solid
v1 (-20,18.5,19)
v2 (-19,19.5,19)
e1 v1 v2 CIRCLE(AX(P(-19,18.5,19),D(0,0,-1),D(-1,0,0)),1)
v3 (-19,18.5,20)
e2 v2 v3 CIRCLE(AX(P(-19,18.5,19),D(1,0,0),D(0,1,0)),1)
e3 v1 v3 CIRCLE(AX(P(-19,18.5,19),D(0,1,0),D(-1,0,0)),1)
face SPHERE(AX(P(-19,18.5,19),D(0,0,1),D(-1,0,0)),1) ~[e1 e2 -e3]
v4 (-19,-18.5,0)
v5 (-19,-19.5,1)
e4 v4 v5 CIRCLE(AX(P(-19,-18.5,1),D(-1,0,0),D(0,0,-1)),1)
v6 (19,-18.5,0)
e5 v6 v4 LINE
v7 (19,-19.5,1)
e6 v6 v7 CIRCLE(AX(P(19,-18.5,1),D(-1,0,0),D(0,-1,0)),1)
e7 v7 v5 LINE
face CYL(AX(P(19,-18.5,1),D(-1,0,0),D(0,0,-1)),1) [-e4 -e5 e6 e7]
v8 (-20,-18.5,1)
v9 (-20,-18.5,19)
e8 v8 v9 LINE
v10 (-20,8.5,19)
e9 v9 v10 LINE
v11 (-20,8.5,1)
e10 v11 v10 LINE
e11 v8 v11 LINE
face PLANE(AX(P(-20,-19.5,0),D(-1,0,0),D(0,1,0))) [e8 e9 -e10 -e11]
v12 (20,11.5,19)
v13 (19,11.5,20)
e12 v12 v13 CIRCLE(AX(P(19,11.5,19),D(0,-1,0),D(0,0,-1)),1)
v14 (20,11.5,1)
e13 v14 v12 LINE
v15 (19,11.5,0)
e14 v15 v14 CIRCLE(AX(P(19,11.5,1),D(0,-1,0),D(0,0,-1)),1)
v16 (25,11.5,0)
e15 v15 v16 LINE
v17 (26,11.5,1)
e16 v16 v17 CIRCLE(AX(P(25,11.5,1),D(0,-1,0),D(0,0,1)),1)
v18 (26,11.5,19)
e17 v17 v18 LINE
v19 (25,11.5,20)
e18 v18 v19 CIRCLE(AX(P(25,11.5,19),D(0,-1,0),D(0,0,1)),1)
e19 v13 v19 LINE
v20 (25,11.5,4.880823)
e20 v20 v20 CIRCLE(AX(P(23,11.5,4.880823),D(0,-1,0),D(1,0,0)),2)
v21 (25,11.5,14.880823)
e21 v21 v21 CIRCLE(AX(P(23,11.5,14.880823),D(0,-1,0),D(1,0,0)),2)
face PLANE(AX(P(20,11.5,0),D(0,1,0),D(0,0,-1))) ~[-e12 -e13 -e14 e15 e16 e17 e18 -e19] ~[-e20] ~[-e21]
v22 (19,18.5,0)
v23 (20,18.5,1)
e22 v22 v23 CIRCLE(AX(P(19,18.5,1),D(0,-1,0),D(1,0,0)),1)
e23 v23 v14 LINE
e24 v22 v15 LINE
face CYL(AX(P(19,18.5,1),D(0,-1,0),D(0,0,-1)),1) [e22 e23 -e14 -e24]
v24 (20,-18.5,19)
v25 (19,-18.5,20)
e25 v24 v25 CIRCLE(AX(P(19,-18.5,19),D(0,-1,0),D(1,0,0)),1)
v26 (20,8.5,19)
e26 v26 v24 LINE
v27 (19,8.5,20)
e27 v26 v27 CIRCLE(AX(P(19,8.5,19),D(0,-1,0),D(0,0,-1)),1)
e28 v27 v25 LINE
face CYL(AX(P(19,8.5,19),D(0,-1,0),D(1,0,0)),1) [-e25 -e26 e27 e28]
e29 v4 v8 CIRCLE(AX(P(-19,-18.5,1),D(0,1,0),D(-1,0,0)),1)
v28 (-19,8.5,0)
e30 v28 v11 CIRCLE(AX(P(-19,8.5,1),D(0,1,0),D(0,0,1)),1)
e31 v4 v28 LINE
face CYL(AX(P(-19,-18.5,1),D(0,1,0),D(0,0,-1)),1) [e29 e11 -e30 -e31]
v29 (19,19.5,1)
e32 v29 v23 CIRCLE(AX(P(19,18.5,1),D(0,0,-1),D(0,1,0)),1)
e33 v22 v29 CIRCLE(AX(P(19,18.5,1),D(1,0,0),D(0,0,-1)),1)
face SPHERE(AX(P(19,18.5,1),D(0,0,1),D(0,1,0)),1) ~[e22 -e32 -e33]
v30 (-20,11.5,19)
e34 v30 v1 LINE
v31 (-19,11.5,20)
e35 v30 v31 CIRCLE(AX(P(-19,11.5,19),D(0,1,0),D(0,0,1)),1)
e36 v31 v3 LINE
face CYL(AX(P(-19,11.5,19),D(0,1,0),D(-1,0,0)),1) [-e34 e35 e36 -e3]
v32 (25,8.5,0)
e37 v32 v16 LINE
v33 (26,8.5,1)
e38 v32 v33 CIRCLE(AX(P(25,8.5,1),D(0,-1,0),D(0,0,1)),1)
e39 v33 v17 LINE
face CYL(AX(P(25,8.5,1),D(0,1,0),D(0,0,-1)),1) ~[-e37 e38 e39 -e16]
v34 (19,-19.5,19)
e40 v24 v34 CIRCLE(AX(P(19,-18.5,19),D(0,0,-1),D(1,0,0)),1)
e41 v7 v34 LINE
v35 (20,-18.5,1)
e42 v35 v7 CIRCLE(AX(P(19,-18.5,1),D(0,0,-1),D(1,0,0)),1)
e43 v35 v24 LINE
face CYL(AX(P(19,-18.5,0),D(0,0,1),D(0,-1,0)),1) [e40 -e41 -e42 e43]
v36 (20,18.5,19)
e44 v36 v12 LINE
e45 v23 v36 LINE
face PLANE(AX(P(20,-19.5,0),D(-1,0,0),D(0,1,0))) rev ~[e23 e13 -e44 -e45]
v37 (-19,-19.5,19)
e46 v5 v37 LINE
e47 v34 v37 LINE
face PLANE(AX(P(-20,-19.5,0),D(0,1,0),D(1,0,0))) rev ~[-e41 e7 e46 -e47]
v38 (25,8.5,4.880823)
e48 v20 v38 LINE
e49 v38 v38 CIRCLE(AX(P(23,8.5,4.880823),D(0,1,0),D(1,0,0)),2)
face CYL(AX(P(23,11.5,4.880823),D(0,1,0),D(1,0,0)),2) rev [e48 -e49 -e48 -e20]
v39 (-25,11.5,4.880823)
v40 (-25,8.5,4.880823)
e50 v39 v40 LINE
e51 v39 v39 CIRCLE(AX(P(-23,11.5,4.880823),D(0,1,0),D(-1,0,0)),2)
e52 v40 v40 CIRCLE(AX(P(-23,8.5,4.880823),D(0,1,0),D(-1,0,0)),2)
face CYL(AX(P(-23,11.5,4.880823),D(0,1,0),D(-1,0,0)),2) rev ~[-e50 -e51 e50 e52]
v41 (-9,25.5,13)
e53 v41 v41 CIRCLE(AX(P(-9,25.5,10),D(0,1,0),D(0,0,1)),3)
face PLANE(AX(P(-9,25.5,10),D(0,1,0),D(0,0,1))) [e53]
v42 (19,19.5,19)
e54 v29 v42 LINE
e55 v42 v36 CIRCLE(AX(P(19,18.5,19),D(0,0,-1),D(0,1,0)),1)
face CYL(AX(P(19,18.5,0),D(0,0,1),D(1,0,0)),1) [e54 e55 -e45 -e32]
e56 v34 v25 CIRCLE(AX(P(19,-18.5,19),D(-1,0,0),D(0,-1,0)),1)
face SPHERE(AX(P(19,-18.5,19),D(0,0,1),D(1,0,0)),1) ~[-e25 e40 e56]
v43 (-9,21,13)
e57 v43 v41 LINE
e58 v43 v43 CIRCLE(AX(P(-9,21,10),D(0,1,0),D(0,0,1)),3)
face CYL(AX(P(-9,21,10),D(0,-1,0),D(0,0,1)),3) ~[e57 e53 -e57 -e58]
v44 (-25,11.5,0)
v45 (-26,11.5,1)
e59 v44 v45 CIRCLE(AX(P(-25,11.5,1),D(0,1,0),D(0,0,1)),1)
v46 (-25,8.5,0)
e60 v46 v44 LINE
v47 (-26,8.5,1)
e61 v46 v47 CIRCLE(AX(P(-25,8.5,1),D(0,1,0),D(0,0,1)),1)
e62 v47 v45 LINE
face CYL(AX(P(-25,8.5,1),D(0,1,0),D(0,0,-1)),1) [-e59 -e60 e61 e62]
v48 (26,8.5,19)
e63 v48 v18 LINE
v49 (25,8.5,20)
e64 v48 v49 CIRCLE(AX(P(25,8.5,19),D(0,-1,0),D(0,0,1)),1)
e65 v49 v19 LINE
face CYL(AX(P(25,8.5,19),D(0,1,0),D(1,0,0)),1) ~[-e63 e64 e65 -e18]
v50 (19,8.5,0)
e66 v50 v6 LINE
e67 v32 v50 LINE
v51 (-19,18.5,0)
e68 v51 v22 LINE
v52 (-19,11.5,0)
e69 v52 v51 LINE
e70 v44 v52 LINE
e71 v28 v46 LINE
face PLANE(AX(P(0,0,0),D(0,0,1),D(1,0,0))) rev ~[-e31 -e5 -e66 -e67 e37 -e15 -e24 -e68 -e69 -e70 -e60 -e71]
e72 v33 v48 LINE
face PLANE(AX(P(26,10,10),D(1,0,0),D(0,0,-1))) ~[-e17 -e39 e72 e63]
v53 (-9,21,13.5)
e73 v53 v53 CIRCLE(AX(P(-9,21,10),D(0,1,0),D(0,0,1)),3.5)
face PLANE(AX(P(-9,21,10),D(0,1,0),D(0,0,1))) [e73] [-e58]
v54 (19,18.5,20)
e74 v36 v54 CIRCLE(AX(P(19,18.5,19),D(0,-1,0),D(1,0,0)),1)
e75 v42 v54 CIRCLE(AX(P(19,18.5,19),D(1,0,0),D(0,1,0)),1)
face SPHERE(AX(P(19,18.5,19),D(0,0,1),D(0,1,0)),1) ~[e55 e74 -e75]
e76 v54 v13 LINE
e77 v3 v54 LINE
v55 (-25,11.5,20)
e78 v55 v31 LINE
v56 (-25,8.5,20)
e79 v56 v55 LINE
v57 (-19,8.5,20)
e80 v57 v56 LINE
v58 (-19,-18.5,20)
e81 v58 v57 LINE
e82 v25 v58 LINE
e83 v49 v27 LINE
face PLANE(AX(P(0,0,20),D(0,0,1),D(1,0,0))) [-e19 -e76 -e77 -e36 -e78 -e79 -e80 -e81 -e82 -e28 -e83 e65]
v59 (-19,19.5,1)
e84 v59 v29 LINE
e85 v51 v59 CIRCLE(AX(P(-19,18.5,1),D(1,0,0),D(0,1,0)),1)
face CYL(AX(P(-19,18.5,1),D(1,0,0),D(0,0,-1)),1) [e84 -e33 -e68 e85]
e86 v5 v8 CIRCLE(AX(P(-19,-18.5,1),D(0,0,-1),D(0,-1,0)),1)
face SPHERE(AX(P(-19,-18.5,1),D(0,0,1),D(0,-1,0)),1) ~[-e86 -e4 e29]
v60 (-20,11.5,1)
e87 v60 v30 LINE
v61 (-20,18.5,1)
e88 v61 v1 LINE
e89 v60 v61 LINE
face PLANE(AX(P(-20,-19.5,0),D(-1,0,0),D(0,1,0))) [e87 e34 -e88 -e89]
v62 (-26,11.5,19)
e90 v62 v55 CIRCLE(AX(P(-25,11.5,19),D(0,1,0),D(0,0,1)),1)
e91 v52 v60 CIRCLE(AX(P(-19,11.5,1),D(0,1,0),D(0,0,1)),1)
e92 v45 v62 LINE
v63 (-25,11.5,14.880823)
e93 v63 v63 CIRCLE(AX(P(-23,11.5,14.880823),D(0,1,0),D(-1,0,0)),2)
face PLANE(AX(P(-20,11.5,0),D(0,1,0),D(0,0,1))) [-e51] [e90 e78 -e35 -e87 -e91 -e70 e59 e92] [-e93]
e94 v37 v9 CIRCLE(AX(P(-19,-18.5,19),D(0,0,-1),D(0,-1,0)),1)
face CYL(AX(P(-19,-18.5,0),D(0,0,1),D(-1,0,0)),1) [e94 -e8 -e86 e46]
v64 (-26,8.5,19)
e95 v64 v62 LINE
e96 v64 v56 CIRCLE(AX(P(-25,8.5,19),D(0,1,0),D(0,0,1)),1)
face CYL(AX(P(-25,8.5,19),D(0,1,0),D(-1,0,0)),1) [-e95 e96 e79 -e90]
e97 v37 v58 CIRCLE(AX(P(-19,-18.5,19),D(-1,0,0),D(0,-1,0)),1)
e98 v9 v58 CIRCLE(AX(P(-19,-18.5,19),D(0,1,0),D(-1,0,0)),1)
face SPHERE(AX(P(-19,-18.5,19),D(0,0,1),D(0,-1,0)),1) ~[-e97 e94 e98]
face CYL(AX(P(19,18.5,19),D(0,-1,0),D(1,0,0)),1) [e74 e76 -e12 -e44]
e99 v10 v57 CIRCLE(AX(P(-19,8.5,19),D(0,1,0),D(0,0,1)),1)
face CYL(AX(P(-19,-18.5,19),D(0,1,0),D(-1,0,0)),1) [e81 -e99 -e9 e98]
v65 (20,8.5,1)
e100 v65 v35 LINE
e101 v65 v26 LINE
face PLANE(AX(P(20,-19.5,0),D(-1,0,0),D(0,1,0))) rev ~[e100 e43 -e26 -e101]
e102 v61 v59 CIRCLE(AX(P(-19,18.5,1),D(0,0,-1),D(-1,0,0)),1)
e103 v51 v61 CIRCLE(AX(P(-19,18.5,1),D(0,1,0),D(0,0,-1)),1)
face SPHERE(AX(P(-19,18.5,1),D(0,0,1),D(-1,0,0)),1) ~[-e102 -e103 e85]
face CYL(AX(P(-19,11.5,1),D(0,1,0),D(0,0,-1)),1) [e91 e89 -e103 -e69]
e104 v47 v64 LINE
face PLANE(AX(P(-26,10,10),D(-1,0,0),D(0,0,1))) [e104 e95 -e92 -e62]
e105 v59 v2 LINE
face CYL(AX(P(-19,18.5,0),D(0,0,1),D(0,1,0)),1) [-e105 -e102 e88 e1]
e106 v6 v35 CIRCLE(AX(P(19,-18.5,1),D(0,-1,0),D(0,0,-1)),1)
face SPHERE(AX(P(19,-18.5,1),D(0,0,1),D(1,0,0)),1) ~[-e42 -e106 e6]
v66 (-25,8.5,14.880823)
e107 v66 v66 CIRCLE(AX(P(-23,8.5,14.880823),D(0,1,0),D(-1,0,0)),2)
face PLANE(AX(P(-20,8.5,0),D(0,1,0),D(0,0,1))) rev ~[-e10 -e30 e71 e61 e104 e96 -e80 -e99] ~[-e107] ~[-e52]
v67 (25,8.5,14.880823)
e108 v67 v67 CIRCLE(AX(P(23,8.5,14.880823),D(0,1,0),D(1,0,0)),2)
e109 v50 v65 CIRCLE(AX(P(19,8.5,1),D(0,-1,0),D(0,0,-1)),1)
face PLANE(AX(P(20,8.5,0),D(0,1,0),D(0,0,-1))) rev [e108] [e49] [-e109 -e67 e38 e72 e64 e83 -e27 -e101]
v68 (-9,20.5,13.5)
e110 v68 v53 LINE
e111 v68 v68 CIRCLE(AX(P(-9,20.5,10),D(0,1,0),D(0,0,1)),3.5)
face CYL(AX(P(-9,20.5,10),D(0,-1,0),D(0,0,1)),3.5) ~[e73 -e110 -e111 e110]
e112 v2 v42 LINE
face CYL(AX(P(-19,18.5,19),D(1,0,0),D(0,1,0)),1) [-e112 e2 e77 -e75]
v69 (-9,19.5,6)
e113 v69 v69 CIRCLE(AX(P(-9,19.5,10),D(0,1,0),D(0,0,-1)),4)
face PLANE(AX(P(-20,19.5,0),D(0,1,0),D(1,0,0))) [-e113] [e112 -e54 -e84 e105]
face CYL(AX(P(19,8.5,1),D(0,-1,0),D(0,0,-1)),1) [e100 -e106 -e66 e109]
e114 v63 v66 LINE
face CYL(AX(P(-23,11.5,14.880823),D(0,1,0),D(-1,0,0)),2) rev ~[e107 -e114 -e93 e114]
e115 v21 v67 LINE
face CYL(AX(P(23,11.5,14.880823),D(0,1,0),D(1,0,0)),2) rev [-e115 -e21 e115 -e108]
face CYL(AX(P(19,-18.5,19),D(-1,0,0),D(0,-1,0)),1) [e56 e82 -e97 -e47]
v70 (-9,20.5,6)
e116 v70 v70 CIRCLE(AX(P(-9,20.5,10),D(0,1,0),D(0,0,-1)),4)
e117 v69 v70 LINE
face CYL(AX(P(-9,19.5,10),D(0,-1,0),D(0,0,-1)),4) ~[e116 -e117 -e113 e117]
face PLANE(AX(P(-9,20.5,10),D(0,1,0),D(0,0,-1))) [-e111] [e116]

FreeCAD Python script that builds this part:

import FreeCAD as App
import Part
import Sketcher


def edges_at(feature, points):
    """Names of the edges that pass closest to the given points."""
    edges = feature.Shape.Edges
    near = lambda p: min(range(len(edges)), key=lambda i: edges[i].distToShape(Part.Vertex(*p))[0])
    return sorted({f"Edge{near(p) + 1}" for p in points})


def add_polygon(sketch, points):
    """Adds a closed chain of lines whose ends are joined by coincident constraints."""
    first, n = sketch.GeometryCount, len(points)
    for a, b in zip(points, points[1:] + points[:1]):
        sketch.addGeometry(Part.LineSegment(App.Vector(*a, 0), App.Vector(*b, 0)), False)
    for i in range(n):
        sketch.addConstraint(Sketcher.Constraint("Coincident", first + i, 2, first + (i + 1) % n, 1))

doc = App.newDocument("Part")
body = doc.addObject("PartDesign::Body", "Body")

# Sketch on XY plane
sketch1 = doc.addObject("Sketcher::SketchObject", "Sketch")
body.addObject(sketch1)
sketch1.AttachmentSupport = (doc.XY_Plane, [""])
sketch1.MapMode = "FlatFace"
add_polygon(sketch1, [(-20, 20), (-20, -20), (20, -20), (20, 20)])  # lines 0-3
sketch1.addConstraint(Sketcher.Constraint("Vertical", 0))
sketch1.addConstraint(Sketcher.Constraint("Horizontal", 1))
sketch1.addConstraint(Sketcher.Constraint("Vertical", 2))
sketch1.addConstraint(Sketcher.Constraint("Horizontal", 3))
sketch1.addConstraint(Sketcher.Constraint("Symmetric", 0, 2, 2, 2, -1, 1))
sketch1.addConstraint(Sketcher.Constraint("DistanceX", 1, 1, 1, 2, 40.0))
sketch1.addConstraint(Sketcher.Constraint("DistanceY", 0, 2, 0, 1, 39.0))
pad1 = doc.addObject("PartDesign::Pad", "Pad")
body.addObject(pad1)
pad1.Profile = sketch1
pad1.Length = 20

# Sketch on XZ plane
sketch2 = doc.addObject("Sketcher::SketchObject", "Sketch001")
body.addObject(sketch2)
sketch2.AttachmentSupport = (doc.XZ_Plane, [""])
sketch2.MapMode = "FlatFace"
sketch2.AttachmentOffset = App.Placement(App.Vector(0, 0, -19.5), App.Rotation())
sketch2.addGeometry(Part.Circle(App.Vector(-9, 10, 0), App.Vector(0, 0, 1), 4), False)
sketch2.addConstraint(Sketcher.Constraint("Diameter", 0, 8.0))
sketch2.addConstraint(Sketcher.Constraint("DistanceX", 0, 3, -1, 1, 9.0))
sketch2.addConstraint(Sketcher.Constraint("DistanceY", -1, 1, 0, 3, 10.0))
pad2 = doc.addObject("PartDesign::Pad", "Pad001")
body.addObject(pad2)
pad2.Profile = sketch2
pad2.Length = 1
pad2.Reversed = True

# Sketch on XZ plane
sketch3 = doc.addObject("Sketcher::SketchObject", "Sketch002")
body.addObject(sketch3)
sketch3.AttachmentSupport = (doc.XZ_Plane, [""])
sketch3.MapMode = "FlatFace"
sketch3.AttachmentOffset = App.Placement(App.Vector(0, 0, -20.5), App.Rotation())
sketch3.addGeometry(Part.Circle(App.Vector(-9, 10, 0), App.Vector(0, 0, 1), 3.5), False)
sketch3.addConstraint(Sketcher.Constraint("Diameter", 0, 7.0))
sketch3.addConstraint(Sketcher.Constraint("DistanceX", 0, 3, -1, 1, 9.0))
sketch3.addConstraint(Sketcher.Constraint("DistanceY", -1, 1, 0, 3, 10.0))
pad3 = doc.addObject("PartDesign::Pad", "Pad002")
body.addObject(pad3)
pad3.Profile = sketch3
pad3.Length = 0.5
pad3.Reversed = True

# Sketch on XZ plane
sketch4 = doc.addObject("Sketcher::SketchObject", "Sketch003")
body.addObject(sketch4)
sketch4.AttachmentSupport = (doc.XZ_Plane, [""])
sketch4.MapMode = "FlatFace"
sketch4.AttachmentOffset = App.Placement(App.Vector(0, 0, -21), App.Rotation())
sketch4.addGeometry(Part.Circle(App.Vector(-9, 10, 0), App.Vector(0, 0, 1), 3), False)
sketch4.addConstraint(Sketcher.Constraint("Diameter", 0, 6.0))
sketch4.addConstraint(Sketcher.Constraint("DistanceX", 0, 3, -1, 1, 9.0))
sketch4.addConstraint(Sketcher.Constraint("DistanceY", -1, 1, 0, 3, 10.0))
pad4 = doc.addObject("PartDesign::Pad", "Pad003")
body.addObject(pad4)
pad4.Profile = sketch4
pad4.Length = 4.5
pad4.Reversed = True

# Sketch on YZ plane
sketch5 = doc.addObject("Sketcher::SketchObject", "Sketch004")
body.addObject(sketch5)
sketch5.AttachmentSupport = (doc.YZ_Plane, [""])
sketch5.MapMode = "FlatFace"
sketch5.AttachmentOffset = App.Placement(App.Vector(0, 0, -20), App.Rotation())
add_polygon(sketch5, [(11.5, 0), (8.5, 0), (8.5, 20), (11.5, 20)])  # lines 0-3
sketch5.addConstraint(Sketcher.Constraint("Horizontal", 0))
sketch5.addConstraint(Sketcher.Constraint("Vertical", 1))
sketch5.addConstraint(Sketcher.Constraint("Horizontal", 2))
sketch5.addConstraint(Sketcher.Constraint("Vertical", 3))
sketch5.addConstraint(Sketcher.Constraint("PointOnObject", 0, 2, -1))
sketch5.addConstraint(Sketcher.Constraint("DistanceX", 0, 2, 0, 1, 3.0))
sketch5.addConstraint(Sketcher.Constraint("DistanceY", 1, 1, 1, 2, 20.0))
sketch5.addConstraint(Sketcher.Constraint("DistanceX", -1, 1, 0, 2, 8.5))
pad5 = doc.addObject("PartDesign::Pad", "Pad004")
body.addObject(pad5)
pad5.Profile = sketch5
pad5.Length = 6
pad5.Reversed = True

# Sketch on XZ plane
sketch6 = doc.addObject("Sketcher::SketchObject", "Sketch005")
body.addObject(sketch6)
sketch6.AttachmentSupport = (doc.XZ_Plane, [""])
sketch6.MapMode = "FlatFace"
sketch6.AttachmentOffset = App.Placement(App.Vector(0, 0, -11.5), App.Rotation())
sketch6.addGeometry(Part.Circle(App.Vector(-23, 4.9, 0), App.Vector(0, 0, 1), 2), False)
sketch6.addGeometry(Part.Circle(App.Vector(-23, 14.9, 0), App.Vector(0, 0, 1), 2), False)
sketch6.addConstraint(Sketcher.Constraint("Equal", 0, 1))
sketch6.addConstraint(Sketcher.Constraint("Vertical", 0, 3, 1, 3))
sketch6.addConstraint(Sketcher.Constraint("Diameter", 0, 4.0))
sketch6.addConstraint(Sketcher.Constraint("DistanceX", 0, 3, -1, 1, 23.0))
sketch6.addConstraint(Sketcher.Constraint("DistanceY", 0, 3, 1, 3, 10.0))
sketch6.addConstraint(Sketcher.Constraint("DistanceY", -1, 1, 0, 3, 4.880823))
pocket1 = doc.addObject("PartDesign::Pocket", "Pocket")
body.addObject(pocket1)
pocket1.Profile = sketch6
pocket1.Length = 6
pocket1.Reversed = True
doc.recompute()

mirrored = doc.addObject("PartDesign::Mirrored", "Mirrored")
body.addObject(mirrored)
mirrored.Originals = [pad5, pocket1]
mirrored.MirrorPlane = (doc.YZ_Plane, [""])
body.Tip = mirrored
doc.recompute()

fillet = doc.addObject("PartDesign::Fillet", "Fillet")
body.addObject(fillet)
fillet.Base = (mirrored, edges_at(mirrored, [(-20, -19.5, 10)]))
fillet.Radius = 1
doc.recompute()

fillet2 = doc.addObject("PartDesign::Fillet", "Fillet001")
body.addObject(fillet2)
fillet2.Base = (fillet, edges_at(fillet, [(20, -19.5, 10)]))
fillet2.Radius = 1
doc.recompute()

fillet3 = doc.addObject("PartDesign::Fillet", "Fillet002")
body.addObject(fillet3)
fillet3.Base = (fillet2, edges_at(fillet2, [(20, 19.5, 10)]))
fillet3.Radius = 1
doc.recompute()

fillet4 = doc.addObject("PartDesign::Fillet", "Fillet003")
body.addObject(fillet4)
fillet4.Base = (fillet3, edges_at(fillet3, [(-20, 19.5, 10)]))
fillet4.Radius = 1
doc.recompute()

fillet5 = doc.addObject("PartDesign::Fillet", "Fillet004")
body.addObject(fillet5)
fillet5.Base = (fillet4, edges_at(fillet4, [(-26, 10, 20), (-26, 10, 0)]))
fillet5.Radius = 1
doc.recompute()

fillet6 = doc.addObject("PartDesign::Fillet", "Fillet005")
body.addObject(fillet6)
fillet6.Base = (fillet5, edges_at(fillet5, [(26, 10, 0), (26, 10, 20)]))
fillet6.Radius = 1
doc.recompute()

fillet7 = doc.addObject("PartDesign::Fillet", "Fillet006")
body.addObject(fillet7)
fillet7.Base = (fillet6, edges_at(fillet6, [
    (-20, 15, 20),
    (-20, 15, 0),
    (-19.707, 19.207, 0),
    (-19.707, 19.207, 20),
    (-20, -5, 0),
    (-20, -5, 20),
    (20, 15, 0),
    (20, 15, 20),
    (0, -19.5, 0),
    (0, -19.5, 20),
    (-19.707, -19.207, 0),
    (-19.707, -19.207, 20),
    (20, -5, 20),
    (20, -5, 0),
    (19.707, -19.207, 0),
    (19.707, -19.207, 20),
    (0, 19.5, 0),
    (0, 19.5, 20),
    (19.707, 19.207, 0),
    (19.707, 19.207, 20),
]))
fillet7.Radius = 1

doc.recompute()
